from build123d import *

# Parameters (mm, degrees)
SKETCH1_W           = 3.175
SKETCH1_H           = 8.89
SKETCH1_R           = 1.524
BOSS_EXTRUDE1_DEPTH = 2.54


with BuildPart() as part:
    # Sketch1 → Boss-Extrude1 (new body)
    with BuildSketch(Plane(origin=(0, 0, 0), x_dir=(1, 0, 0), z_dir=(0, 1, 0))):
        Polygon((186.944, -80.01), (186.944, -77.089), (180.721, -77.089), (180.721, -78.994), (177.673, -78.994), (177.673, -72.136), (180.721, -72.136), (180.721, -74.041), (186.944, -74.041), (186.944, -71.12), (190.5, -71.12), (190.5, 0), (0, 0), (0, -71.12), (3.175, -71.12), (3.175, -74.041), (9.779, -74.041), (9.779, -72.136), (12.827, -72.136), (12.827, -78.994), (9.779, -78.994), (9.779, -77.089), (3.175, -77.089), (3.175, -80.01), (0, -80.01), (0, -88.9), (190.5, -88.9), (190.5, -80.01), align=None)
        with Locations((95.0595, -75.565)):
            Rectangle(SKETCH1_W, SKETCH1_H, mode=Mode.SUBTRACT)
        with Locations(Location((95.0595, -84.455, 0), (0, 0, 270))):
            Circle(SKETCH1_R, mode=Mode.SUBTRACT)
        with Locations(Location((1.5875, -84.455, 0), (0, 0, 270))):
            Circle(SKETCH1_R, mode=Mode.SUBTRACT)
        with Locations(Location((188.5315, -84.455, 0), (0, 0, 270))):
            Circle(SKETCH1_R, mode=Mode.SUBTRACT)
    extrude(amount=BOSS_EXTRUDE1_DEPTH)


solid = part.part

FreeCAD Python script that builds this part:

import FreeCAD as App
import Part
import Sketcher

V = App.Vector
Q = App.Units.Quantity


def add_polygon(sketch, points):
    """Adds a closed chain of lines whose ends are joined by coincident constraints."""
    first, n = sketch.GeometryCount, len(points)
    for a, b in zip(points, points[1:] + points[:1]):
        sketch.addGeometry(Part.LineSegment(App.Vector(*a, 0), App.Vector(*b, 0)), False)
    for i in range(n):
        sketch.addConstraint(Sketcher.Constraint("Coincident", first + i, 2, first + (i + 1) % n, 1))

doc = App.newDocument("Part")
body = doc.addObject("PartDesign::Body", "Body")

sketch1 = body.newObject("Sketcher::SketchObject", "Sketch")
sketch1.AttachmentSupport = (doc.getObject("XZ_Plane"), [""])
sketch1.MapMode = "FlatFace"
add_polygon(sketch1, [(186.9, 80), (186.9, 77.1), (180.7, 77.1), (180.7, 79), (177.7, 79), (177.7, 72.1), (180.7, 72.1), (180.7, 74), (186.9, 74), (186.9, 71.1), (190.5, 71.1), (190.5, 0), (0, 0), (0, 71.1), (3.2, 71.1), (3.2, 74), (9.8, 74), (9.8, 72.1), (12.8, 72.1), (12.8, 79), (9.8, 79), (9.8, 77.1), (3.2, 77.1), (3.2, 80), (0, 80), (0, 88.9), (190.5, 88.9), (190.5, 80)])
sketch1.addGeometry(Part.Circle(V(1.6, 84.5, 0), V(0, 0, 1), 1.5), False)
sketch1.addGeometry(Part.Circle(V(95.1, 84.5, 0), V(0, 0, 1), 1.5), False)
sketch1.addGeometry(Part.Circle(V(188.5, 84.5, 0), V(0, 0, 1), 1.5), False)
add_polygon(sketch1, [(96.6, 80), (93.5, 80), (93.5, 71.1), (96.6, 71.1)])
sketch1.addConstraint(Sketcher.Constraint("Vertical", 0))
sketch1.addConstraint(Sketcher.Constraint("Horizontal", 1))
sketch1.addConstraint(Sketcher.Constraint("Vertical", 2))
sketch1.addConstraint(Sketcher.Constraint("Horizontal", 3))
sketch1.addConstraint(Sketcher.Constraint("Vertical", 4))
sketch1.addConstraint(Sketcher.Constraint("Horizontal", 5))
sketch1.addConstraint(Sketcher.Constraint("Vertical", 6))
sketch1.addConstraint(Sketcher.Constraint("Horizontal", 7))
sketch1.addConstraint(Sketcher.Constraint("Vertical", 8))
sketch1.addConstraint(Sketcher.Constraint("Horizontal", 9))
sketch1.addConstraint(Sketcher.Constraint("Vertical", 10))
sketch1.addConstraint(Sketcher.Constraint("Horizontal", 11))
sketch1.addConstraint(Sketcher.Constraint("Vertical", 12))
sketch1.addConstraint(Sketcher.Constraint("Horizontal", 13))
sketch1.addConstraint(Sketcher.Constraint("Vertical", 14))
sketch1.addConstraint(Sketcher.Constraint("Horizontal", 15))
sketch1.addConstraint(Sketcher.Constraint("Vertical", 16))
sketch1.addConstraint(Sketcher.Constraint("Horizontal", 17))
sketch1.addConstraint(Sketcher.Constraint("Vertical", 18))
sketch1.addConstraint(Sketcher.Constraint("Horizontal", 19))
sketch1.addConstraint(Sketcher.Constraint("Vertical", 20))
sketch1.addConstraint(Sketcher.Constraint("Horizontal", 21))
sketch1.addConstraint(Sketcher.Constraint("Vertical", 22))
sketch1.addConstraint(Sketcher.Constraint("Horizontal", 23))
sketch1.addConstraint(Sketcher.Constraint("Vertical", 24))
sketch1.addConstraint(Sketcher.Constraint("Horizontal", 25))
sketch1.addConstraint(Sketcher.Constraint("Vertical", 26))
sketch1.addConstraint(Sketcher.Constraint("Horizontal", 27))
sketch1.addConstraint(Sketcher.Constraint("Horizontal", 31))
sketch1.addConstraint(Sketcher.Constraint("Vertical", 32))
sketch1.addConstraint(Sketcher.Constraint("Horizontal", 33))
sketch1.addConstraint(Sketcher.Constraint("Vertical", 34))
sketch1.addConstraint(Sketcher.Constraint("Coincident", 11, 2, -1, 1))
sketch1.addConstraint(Sketcher.Constraint("Equal", 28, 29))
sketch1.addConstraint(Sketcher.Constraint("Equal", 29, 30))
sketch1.addConstraint(Sketcher.Constraint("PointOnObject", 23, 2, -2))
sketch1.addConstraint(Sketcher.Constraint("Horizontal", 28, 3, 29, 3))
sketch1.addConstraint(Sketcher.Constraint("Horizontal", 29, 3, 30, 3))
sketch1.addConstraint(Sketcher.Constraint("Horizontal", 9, 2, 12, 2))
sketch1.addConstraint(Sketcher.Constraint("Horizontal", 7, 2, 14, 2))
sketch1.addConstraint(Sketcher.Constraint("Horizontal", 5, 2, 16, 2))
sketch1.addConstraint(Sketcher.Constraint("Horizontal", 3, 2, 18, 2))
sketch1.addConstraint(Sketcher.Constraint("Horizontal", 1, 2, 20, 2))
sketch1.addConstraint(Sketcher.Constraint("Horizontal", 23, 2, 26, 2))
sketch1.addConstraint(Sketcher.Constraint("Horizontal", 27, 2, 31, 2))
sketch1.addConstraint(Sketcher.Constraint("Horizontal", 13, 2, 32, 2))
sketch1.addConstraint(Sketcher.Constraint("Vertical", 2, 2, 5, 2))
sketch1.addConstraint(Sketcher.Constraint("Vertical", 0, 2, 7, 2))
sketch1.addConstraint(Sketcher.Constraint("Vertical", 16, 2, 19, 2))
sketch1.addConstraint(Sketcher.Constraint("Vertical", 14, 2, 21, 2))
sketch1.addConstraint(Sketcher.Constraint("Vertical", 10, 2, 25, 2))
sketch1.addConstraint(Sketcher.Constraint("Equal", 5, 17))
sketch1.addConstraint(Sketcher.Constraint("Equal", 23, 31))
sketch1.addConstraint(Sketcher.Constraint("Equal", 2, 6))
sketch1.addConstraint(Sketcher.Constraint("Equal", 0, 8))
sketch1.addConstraint(Sketcher.Constraint("Equal", 26, 32))
sketch1.addConstraint(Sketcher.Constraint("Diameter", 28, Q("0.12 in")))
sketch1.addConstraint(Sketcher.Constraint("DistanceX", 11, 2, 11, 1, Q("7.5 in")))
sketch1.addConstraint(Sketcher.Constraint("DistanceY", 10, 2, 10, 1, Q("2.8 in")))
sketch1.addConstraint(Sketcher.Constraint("DistanceX", 3, 2, 3, 1, Q("0.12 in")))
sketch1.addConstraint(Sketcher.Constraint("DistanceX", 9, 1, 9, 2, Q("0.14 in")))
sketch1.addConstraint(Sketcher.Constraint("DistanceX", 15, 1, 15, 2, Q("0.26 in")))
sketch1.addConstraint(Sketcher.Constraint("DistanceY", 4, 2, 4, 1, Q("0.27 in")))
sketch1.addConstraint(Sketcher.Constraint("DistanceY", 24, 1, 24, 2, Q("0.35 in")))
sketch1.addConstraint(Sketcher.Constraint("DistanceX", 1, 2, 1, 1, Q("0.245 in")))
sketch1.addConstraint(Sketcher.Constraint("DistanceX", 13, 1, 13, 2, Q("0.125 in")))
sketch1.addConstraint(Sketcher.Constraint("DistanceY", 0, 2, 0, 1, Q("0.115 in")))
sketch1.addConstraint(Sketcher.Constraint("DistanceX", -1, 1, 31, 2, Q("3.68 in")))
sketch1.addConstraint(Sketcher.Constraint("DistanceX", 28, 3, 29, 3, Q("3.68 in")))
sketch1.addConstraint(Sketcher.Constraint("DistanceX", 29, 3, 30, 3, Q("3.68 in")))
sketch1.addConstraint(Sketcher.Constraint("DistanceY", 0, 2, 30, 3, Q("0.29 in")))
sketch1.addConstraint(Sketcher.Constraint("DistanceX", -1, 1, 28, 3, Q("0.0625 in")))
pad1 = body.newObject("PartDesign::Pad", "Pad")
pad1.Profile = sketch1
pad1.Length = Q("0.1 in")
pad1.Reversed = True

doc.recompute()
